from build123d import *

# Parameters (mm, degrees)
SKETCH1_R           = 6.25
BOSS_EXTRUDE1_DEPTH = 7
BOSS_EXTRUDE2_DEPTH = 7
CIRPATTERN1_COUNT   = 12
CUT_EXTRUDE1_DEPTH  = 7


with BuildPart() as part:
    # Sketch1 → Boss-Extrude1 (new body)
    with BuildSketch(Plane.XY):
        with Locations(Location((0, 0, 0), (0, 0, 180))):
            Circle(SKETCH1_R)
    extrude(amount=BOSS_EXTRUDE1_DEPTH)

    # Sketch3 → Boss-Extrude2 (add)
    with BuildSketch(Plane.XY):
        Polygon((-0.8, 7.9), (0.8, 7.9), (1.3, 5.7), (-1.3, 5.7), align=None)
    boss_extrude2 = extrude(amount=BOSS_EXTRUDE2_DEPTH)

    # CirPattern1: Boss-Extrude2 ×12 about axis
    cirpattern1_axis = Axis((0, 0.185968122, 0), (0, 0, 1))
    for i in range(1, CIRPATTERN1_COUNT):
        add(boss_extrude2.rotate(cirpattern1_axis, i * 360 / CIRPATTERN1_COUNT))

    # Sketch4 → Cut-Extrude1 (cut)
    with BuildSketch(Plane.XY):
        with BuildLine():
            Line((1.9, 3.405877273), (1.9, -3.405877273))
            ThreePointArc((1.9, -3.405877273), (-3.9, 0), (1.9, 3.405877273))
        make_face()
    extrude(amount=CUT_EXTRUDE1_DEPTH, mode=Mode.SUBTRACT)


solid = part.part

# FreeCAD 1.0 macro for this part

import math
import FreeCAD as App
import Part
import Sketcher

V = App.Vector
Q = App.Units.Quantity

doc = App.newDocument("Part")
params = doc.addObject("Spreadsheet::Sheet", "Params")
for row, (alias, value) in enumerate([
    ("sketch1_diameter", "12.5 mm"),
    ("pad1_length", "7 mm"),
    ("sketch2_width", "1.6 mm"),
    ("sketch2_width2", "2.6 mm"),
    ("pad2_length", "7 mm"),
    ("sketch3_radius", "3.9 mm"),
    ("pocket1_length", "7 mm"),
], start=1):
    params.set(f"A{row}", alias)
    params.set(f"B{row}", "=" + value)
    params.setAlias(f"B{row}", alias)

body = doc.addObject("PartDesign::Body", "Body")

# Sketch on XY plane
sketch1 = body.newObject("Sketcher::SketchObject", "Sketch")
sketch1.AttachmentSupport = (doc.getObject("XY_Plane"), [""])
sketch1.MapMode = "FlatFace"
sketch1.addGeometry(Part.Circle(V(0, 0, 0), V(0, 0, 1), 6), False)
sketch1.addConstraint([
    Sketcher.Constraint("Coincident", 0, 3, -1, 1),
    Sketcher.Constraint("Diameter", 0, Q("12.5 mm")),
])
sketch1.setExpression("Constraints[1]", "Params.sketch1_diameter")
pad1 = body.newObject("PartDesign::Pad", "Pad")
pad1.Profile = sketch1
pad1.setExpression("Length", "Params.pad1_length")

# Sketch on XY plane
sketch2 = body.newObject("Sketcher::SketchObject", "Sketch001")
sketch2.AttachmentSupport = (doc.getObject("XY_Plane"), [""])
sketch2.MapMode = "FlatFace"
sketch2.addGeometry([
    Part.LineSegment(V(0.8, 7.9, 0), V(-0.8, 7.9, 0)),
    Part.LineSegment(V(-0.8, 7.9, 0), V(-1.3, 5.7, 0)),
    Part.LineSegment(V(-1.3, 5.7, 0), V(1.3, 5.7, 0)),
    Part.LineSegment(V(1.3, 5.7, 0), V(0.8, 7.9, 0)),
], False)
sketch2.addConstraint([
    Sketcher.Constraint("Coincident", 0, 2, 1, 1),
    Sketcher.Constraint("Coincident", 1, 2, 2, 1),
    Sketcher.Constraint("Coincident", 2, 2, 3, 1),
    Sketcher.Constraint("Coincident", 3, 2, 0, 1),
    Sketcher.Constraint("Horizontal", 0),
    Sketcher.Constraint("Horizontal", 2),
    Sketcher.Constraint("Equal", 1, 3),
    Sketcher.Constraint("DistanceX", 0, 2, 0, 1, Q("1.6 mm")),
    Sketcher.Constraint("DistanceX", 2, 1, 2, 2, Q("2.6 mm")),
    Sketcher.Constraint("DistanceX", 0, 2, -1, 1, Q("0.8 mm")),
    Sketcher.Constraint("DistanceY", -1, 1, 0, 2, Q("7.9 mm")),
    Sketcher.Constraint("DistanceY", -1, 1, 1, 2, Q("5.7 mm")),
])
sketch2.setExpression("Constraints[7]", "Params.sketch2_width")
sketch2.setExpression("Constraints[8]", "Params.sketch2_width2")
pad2 = body.newObject("PartDesign::Pad", "Pad001")
pad2.Profile = sketch2
pad2.setExpression("Length", "Params.pad2_length")
doc.recompute()

datumline = body.newObject("PartDesign::Line", "DatumLine")
datumline.Placement = App.Placement(V(0, 0.185968, 0), App.Rotation(V(0, 0, 1), V(0, 0, 1)))
polarpattern = body.newObject("PartDesign::PolarPattern", "PolarPattern")
polarpattern.Originals = [pad2]
polarpattern.Axis = (datumline, [""])
polarpattern.Angle = 360
polarpattern.Occurrences = 12
body.Tip = polarpattern

# Sketch on XY plane
sketch3 = body.newObject("Sketcher::SketchObject", "Sketch002")
sketch3.AttachmentSupport = (doc.getObject("XY_Plane"), [""])
sketch3.MapMode = "FlatFace"
sketch3.addGeometry([
    Part.LineSegment(V(1.9, -3.4, 0), V(1.9, 3.4, 0)),
    Part.ArcOfCircle(Part.Circle(V(0, 0, 0), V(0, 0, 1), 3.9), math.radians(61), math.radians(299)),
], False)
sketch3.addConstraint([
    Sketcher.Constraint("Coincident", 0, 1, 1, 2),
    Sketcher.Constraint("Coincident", 1, 1, 0, 2),
    Sketcher.Constraint("Vertical", 0),
    Sketcher.Constraint("Coincident", 1, 3, -1, 1),
    Sketcher.Constraint("Radius", 1, Q("3.9 mm")),
    Sketcher.Constraint("DistanceX", -1, 1, 0, 1, Q("1.9 mm")),
])
sketch3.setExpression("Constraints[4]", "Params.sketch3_radius")
pocket1 = body.newObject("PartDesign::Pocket", "Pocket")
pocket1.Profile = sketch3
pocket1.setExpression("Length", "Params.pocket1_length")
pocket1.Reversed = True

doc.recompute()
